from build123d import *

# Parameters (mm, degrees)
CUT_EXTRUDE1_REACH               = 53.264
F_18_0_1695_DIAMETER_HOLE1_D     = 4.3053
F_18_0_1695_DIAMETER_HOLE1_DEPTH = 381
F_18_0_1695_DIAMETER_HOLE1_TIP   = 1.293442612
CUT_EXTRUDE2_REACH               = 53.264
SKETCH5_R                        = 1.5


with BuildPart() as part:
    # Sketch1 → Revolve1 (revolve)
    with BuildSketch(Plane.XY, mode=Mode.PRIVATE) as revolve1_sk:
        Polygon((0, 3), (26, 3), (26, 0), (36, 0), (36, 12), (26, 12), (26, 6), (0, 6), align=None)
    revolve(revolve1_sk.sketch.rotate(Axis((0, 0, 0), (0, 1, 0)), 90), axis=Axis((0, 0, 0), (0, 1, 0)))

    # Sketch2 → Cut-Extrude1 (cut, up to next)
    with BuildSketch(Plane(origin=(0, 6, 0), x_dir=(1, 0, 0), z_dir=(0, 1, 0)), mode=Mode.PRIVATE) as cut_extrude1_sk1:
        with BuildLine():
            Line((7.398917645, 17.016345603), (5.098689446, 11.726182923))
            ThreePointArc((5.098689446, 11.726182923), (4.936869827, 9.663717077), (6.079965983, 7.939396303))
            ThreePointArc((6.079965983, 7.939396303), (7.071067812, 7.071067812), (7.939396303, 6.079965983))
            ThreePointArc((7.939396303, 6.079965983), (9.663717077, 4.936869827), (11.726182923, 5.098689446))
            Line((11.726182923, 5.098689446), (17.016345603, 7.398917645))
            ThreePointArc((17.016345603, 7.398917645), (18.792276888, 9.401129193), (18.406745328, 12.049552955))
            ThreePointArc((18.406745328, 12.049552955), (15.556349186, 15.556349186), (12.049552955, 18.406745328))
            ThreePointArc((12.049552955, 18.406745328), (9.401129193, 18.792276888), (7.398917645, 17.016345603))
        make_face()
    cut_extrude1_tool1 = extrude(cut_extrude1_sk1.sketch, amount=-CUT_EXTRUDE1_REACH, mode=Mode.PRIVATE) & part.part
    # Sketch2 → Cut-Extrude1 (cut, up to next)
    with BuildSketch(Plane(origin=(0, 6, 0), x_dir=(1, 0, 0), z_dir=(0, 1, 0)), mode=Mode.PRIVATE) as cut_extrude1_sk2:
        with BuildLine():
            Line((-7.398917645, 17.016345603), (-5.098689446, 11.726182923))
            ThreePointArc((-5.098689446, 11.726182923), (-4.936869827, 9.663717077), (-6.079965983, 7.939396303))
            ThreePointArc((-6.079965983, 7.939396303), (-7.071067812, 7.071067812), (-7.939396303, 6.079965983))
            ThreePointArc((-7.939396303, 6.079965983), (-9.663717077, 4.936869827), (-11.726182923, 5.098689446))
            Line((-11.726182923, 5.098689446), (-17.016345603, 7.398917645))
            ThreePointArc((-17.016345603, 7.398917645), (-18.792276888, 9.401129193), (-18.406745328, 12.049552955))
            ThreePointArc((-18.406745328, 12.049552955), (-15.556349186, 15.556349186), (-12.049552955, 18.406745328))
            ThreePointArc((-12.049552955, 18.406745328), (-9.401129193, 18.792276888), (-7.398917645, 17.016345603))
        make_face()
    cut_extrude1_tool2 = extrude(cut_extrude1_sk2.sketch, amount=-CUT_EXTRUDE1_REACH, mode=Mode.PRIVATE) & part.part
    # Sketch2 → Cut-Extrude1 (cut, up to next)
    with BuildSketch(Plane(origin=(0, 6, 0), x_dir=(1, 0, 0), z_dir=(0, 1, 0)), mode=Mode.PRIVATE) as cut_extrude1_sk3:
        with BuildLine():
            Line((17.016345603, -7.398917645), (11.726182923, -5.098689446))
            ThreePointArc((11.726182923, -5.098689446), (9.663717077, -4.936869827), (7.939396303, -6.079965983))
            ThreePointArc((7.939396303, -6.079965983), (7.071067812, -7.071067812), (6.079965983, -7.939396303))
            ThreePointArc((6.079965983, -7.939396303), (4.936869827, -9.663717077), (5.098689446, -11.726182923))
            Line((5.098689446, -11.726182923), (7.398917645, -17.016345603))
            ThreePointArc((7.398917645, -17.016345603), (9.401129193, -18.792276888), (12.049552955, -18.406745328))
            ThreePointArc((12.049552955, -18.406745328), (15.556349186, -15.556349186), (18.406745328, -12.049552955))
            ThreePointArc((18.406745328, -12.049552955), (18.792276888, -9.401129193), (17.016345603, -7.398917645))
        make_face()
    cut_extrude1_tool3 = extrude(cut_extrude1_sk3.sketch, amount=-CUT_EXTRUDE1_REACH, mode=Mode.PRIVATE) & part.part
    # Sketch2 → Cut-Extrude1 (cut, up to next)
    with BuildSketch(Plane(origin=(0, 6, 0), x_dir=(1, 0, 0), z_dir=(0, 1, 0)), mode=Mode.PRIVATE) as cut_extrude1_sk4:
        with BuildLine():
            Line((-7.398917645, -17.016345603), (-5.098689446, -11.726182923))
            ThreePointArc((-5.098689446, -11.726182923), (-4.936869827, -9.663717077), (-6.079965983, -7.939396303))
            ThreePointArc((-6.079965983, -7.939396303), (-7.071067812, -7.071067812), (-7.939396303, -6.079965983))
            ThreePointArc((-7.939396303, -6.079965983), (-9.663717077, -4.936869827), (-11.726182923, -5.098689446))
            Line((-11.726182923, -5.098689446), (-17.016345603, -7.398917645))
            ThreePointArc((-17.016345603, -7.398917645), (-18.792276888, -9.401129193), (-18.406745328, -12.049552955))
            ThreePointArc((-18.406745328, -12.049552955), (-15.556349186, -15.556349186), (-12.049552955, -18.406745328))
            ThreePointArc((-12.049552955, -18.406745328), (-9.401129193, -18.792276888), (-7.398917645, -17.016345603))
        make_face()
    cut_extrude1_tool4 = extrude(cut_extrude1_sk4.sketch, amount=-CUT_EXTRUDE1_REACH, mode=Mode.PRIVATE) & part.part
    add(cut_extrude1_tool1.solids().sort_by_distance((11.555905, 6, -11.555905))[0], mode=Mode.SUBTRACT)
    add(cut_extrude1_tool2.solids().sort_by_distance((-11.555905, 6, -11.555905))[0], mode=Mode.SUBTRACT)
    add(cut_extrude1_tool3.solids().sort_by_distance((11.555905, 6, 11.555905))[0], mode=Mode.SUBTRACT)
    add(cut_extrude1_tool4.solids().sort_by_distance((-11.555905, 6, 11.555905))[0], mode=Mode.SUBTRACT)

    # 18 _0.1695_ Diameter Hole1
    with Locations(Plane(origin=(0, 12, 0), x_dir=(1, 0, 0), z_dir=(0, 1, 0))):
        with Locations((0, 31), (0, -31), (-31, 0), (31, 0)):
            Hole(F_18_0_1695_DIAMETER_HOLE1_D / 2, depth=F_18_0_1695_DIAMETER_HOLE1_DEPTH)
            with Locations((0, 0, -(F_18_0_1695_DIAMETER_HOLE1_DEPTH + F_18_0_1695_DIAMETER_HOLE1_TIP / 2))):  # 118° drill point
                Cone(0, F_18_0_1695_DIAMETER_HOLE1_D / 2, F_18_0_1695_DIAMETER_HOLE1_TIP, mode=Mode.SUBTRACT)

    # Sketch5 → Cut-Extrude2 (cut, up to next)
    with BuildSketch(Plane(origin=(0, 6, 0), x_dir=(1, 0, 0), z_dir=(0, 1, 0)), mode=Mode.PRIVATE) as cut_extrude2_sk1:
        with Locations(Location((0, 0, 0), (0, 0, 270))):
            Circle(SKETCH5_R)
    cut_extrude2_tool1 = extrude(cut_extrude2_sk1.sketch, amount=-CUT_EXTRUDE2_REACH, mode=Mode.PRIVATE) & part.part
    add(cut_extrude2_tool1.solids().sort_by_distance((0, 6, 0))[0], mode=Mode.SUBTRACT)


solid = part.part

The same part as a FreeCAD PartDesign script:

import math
import FreeCAD as App
import Part
import Sketcher
Q = App.Units.Quantity

doc = App.newDocument("Part")
body = doc.addObject("PartDesign::Body", "Body")

# Sketch on XY plane
sketch1 = body.newObject("Sketcher::SketchObject", "Sketch")
sketch1.AttachmentSupport = (doc.getObject("XY_Plane"), [""])
sketch1.MapMode = "FlatFace"
sketch1.addGeometry(Part.LineSegment(App.Vector(0, 3, 0), App.Vector(26, 3, 0)), False)
sketch1.addGeometry(Part.LineSegment(App.Vector(26, 3, 0), App.Vector(26, 0, 0)), False)
sketch1.addGeometry(Part.LineSegment(App.Vector(26, 0, 0), App.Vector(36, 0, 0)), False)
sketch1.addGeometry(Part.LineSegment(App.Vector(36, 0, 0), App.Vector(36, 12, 0)), False)
sketch1.addGeometry(Part.LineSegment(App.Vector(36, 12, 0), App.Vector(26, 12, 0)), False)
sketch1.addGeometry(Part.LineSegment(App.Vector(26, 12, 0), App.Vector(26, 6, 0)), False)
sketch1.addGeometry(Part.LineSegment(App.Vector(26, 6, 0), App.Vector(0, 6, 0)), False)
sketch1.addGeometry(Part.LineSegment(App.Vector(0, 6, 0), App.Vector(0, 3, 0)), False)
sketch1.addConstraint(Sketcher.Constraint("Coincident", 0, 2, 1, 1))
sketch1.addConstraint(Sketcher.Constraint("Coincident", 1, 2, 2, 1))
sketch1.addConstraint(Sketcher.Constraint("Coincident", 2, 2, 3, 1))
sketch1.addConstraint(Sketcher.Constraint("Coincident", 3, 2, 4, 1))
sketch1.addConstraint(Sketcher.Constraint("Coincident", 4, 2, 5, 1))
sketch1.addConstraint(Sketcher.Constraint("Coincident", 5, 2, 6, 1))
sketch1.addConstraint(Sketcher.Constraint("Coincident", 6, 2, 7, 1))
sketch1.addConstraint(Sketcher.Constraint("Coincident", 7, 2, 0, 1))
sketch1.addConstraint(Sketcher.Constraint("Horizontal", 0))
sketch1.addConstraint(Sketcher.Constraint("Vertical", 1))
sketch1.addConstraint(Sketcher.Constraint("Horizontal", 2))
sketch1.addConstraint(Sketcher.Constraint("Vertical", 3))
sketch1.addConstraint(Sketcher.Constraint("Horizontal", 4))
sketch1.addConstraint(Sketcher.Constraint("Vertical", 5))
sketch1.addConstraint(Sketcher.Constraint("Horizontal", 6))
sketch1.addConstraint(Sketcher.Constraint("Vertical", 7))
sketch1.addConstraint(Sketcher.Constraint("PointOnObject", 1, 2, -1))
sketch1.addConstraint(Sketcher.Constraint("PointOnObject", 6, 2, -2))
sketch1.addConstraint(Sketcher.Constraint("Vertical", 1, 2, 4, 2))
sketch1.addConstraint(Sketcher.Constraint("Equal", 1, 7))
sketch1.addConstraint(Sketcher.Constraint("DistanceX", 0, 1, 0, 2, 26.0))
sketch1.addConstraint(Sketcher.Constraint("DistanceX", 2, 1, 2, 2, 10.0))
sketch1.addConstraint(Sketcher.Constraint("DistanceY", 1, 2, 1, 1, 3.0))
sketch1.addConstraint(Sketcher.Constraint("DistanceY", 3, 1, 3, 2, 12.0))
revolution = body.newObject("PartDesign::Revolution", "Revolution")
revolution.Profile = sketch1
revolution.ReferenceAxis = (sketch1, ["V_Axis"])
revolution.Angle = 360

# Sketch on XZ plane
sketch2 = body.newObject("Sketcher::SketchObject", "Sketch001")
sketch2.AttachmentSupport = (doc.getObject("XZ_Plane"), [""])
sketch2.MapMode = "FlatFace"
sketch2.AttachmentOffset = App.Placement(App.Vector(0, 0, -6), App.Rotation())
sketch2.addGeometry(Part.LineSegment(App.Vector(7.398918, -17.016346, 0), App.Vector(5.098689, -11.726183, 0)), False)
sketch2.addGeometry(Part.ArcOfCircle(Part.Circle(App.Vector(8.010355, -10.460155, 0), App.Vector(0, 0, 1), 3.175), math.radians(127.444784), math.radians(203.5)), False)
sketch2.addGeometry(Part.ArcOfCircle(Part.Circle(App.Vector(0, 0, 0), App.Vector(0, 0, 1), 10), math.radians(-52.555215), math.radians(-37.444785)), False)
sketch2.addGeometry(Part.ArcOfCircle(Part.Circle(App.Vector(10.460155, -8.010355, 0), App.Vector(0, 0, 1), 3.175), math.radians(66.5), math.radians(142.555216)), False)
sketch2.addGeometry(Part.LineSegment(App.Vector(11.726183, -5.098689, 0), App.Vector(17.016346, -7.398918, 0)), False)
sketch2.addGeometry(Part.ArcOfCircle(Part.Circle(App.Vector(15.750317, -10.310583, 0), App.Vector(0, 0, 1), 3.175), math.radians(-33.209842), math.radians(66.5)), False)
sketch2.addGeometry(Part.ArcOfCircle(Part.Circle(App.Vector(0, 0, 0), App.Vector(0, 0, 1), 22), math.radians(-56.790158), math.radians(-33.209842)), False)
sketch2.addGeometry(Part.ArcOfCircle(Part.Circle(App.Vector(10.310583, -15.750317, 0), App.Vector(0, 0, 1), 3.175), math.radians(-156.5), math.radians(-56.790158)), False)
sketch2.addConstraint(Sketcher.Constraint("Tangent", 0, 2, 1, 2))
sketch2.addConstraint(Sketcher.Constraint("Tangent", 1, 1, 2, 1))
sketch2.addConstraint(Sketcher.Constraint("Tangent", 2, 2, 3, 2))
sketch2.addConstraint(Sketcher.Constraint("Tangent", 3, 1, 4, 1))
sketch2.addConstraint(Sketcher.Constraint("Tangent", 4, 2, 5, 2))
sketch2.addConstraint(Sketcher.Constraint("Tangent", 5, 1, 6, 2))
sketch2.addConstraint(Sketcher.Constraint("Tangent", 6, 1, 7, 2))
sketch2.addConstraint(Sketcher.Constraint("Tangent", 7, 1, 0, 1))
sketch2.addConstraint(Sketcher.Constraint("Coincident", 2, 3, -1, 1))
sketch2.addConstraint(Sketcher.Constraint("Coincident", 6, 3, -1, 1))
sketch2.addConstraint(Sketcher.Constraint("Equal", 1, 3))
sketch2.addConstraint(Sketcher.Constraint("Equal", 3, 5))
sketch2.addConstraint(Sketcher.Constraint("Equal", 5, 7))
sketch2.addConstraint(Sketcher.Constraint("Equal", 0, 4))
sketch2.addConstraint(Sketcher.Constraint("Radius", 2, 10.0))
sketch2.addConstraint(Sketcher.Constraint("Radius", 6, 22.0))
sketch2.addConstraint(Sketcher.Constraint("Angle", 0, Q("113.5 deg")))
sketch2.addConstraint(Sketcher.Constraint("Angle", 4, Q("-23.5 deg")))
sketch2.addConstraint(Sketcher.Constraint("Radius", 1, 3.175))
sketch2.addConstraint(Sketcher.Constraint("DistanceX", 1, 3, 3, 3, 2.449799))
pocket1 = body.newObject("PartDesign::Pocket", "Pocket")
pocket1.Profile = sketch2
pocket1.Type = "UpToFirst"
pocket1.Reversed = True

# Sketch on XZ plane
sketch3 = body.newObject("Sketcher::SketchObject", "Sketch002")
sketch3.AttachmentSupport = (doc.getObject("XZ_Plane"), [""])
sketch3.MapMode = "FlatFace"
sketch3.AttachmentOffset = App.Placement(App.Vector(0, 0, -6), App.Rotation())
sketch3.addGeometry(Part.LineSegment(App.Vector(-5.098689, -11.726183, 0), App.Vector(-7.398918, -17.016346, 0)), False)
sketch3.addGeometry(Part.ArcOfCircle(Part.Circle(App.Vector(-10.310583, -15.750317, 0), App.Vector(0, 0, 1), 3.175), math.radians(-123.209842), math.radians(-23.5)), False)
sketch3.addGeometry(Part.ArcOfCircle(Part.Circle(App.Vector(0, 0, 0), App.Vector(0, 0, 1), 22), math.radians(-146.790158), math.radians(-123.209842)), False)
sketch3.addGeometry(Part.ArcOfCircle(Part.Circle(App.Vector(-15.750317, -10.310583, 0), App.Vector(0, 0, 1), 3.175), math.radians(113.5), math.radians(213.209842)), False)
sketch3.addGeometry(Part.LineSegment(App.Vector(-17.016346, -7.398918, 0), App.Vector(-11.726183, -5.098689, 0)), False)
sketch3.addGeometry(Part.ArcOfCircle(Part.Circle(App.Vector(-10.460155, -8.010355, 0), App.Vector(0, 0, 1), 3.175), math.radians(37.444784), math.radians(113.5)), False)
sketch3.addGeometry(Part.ArcOfCircle(Part.Circle(App.Vector(0, 0, 0), App.Vector(0, 0, 1), 10), math.radians(-142.555215), math.radians(-127.444785)), False)
sketch3.addGeometry(Part.ArcOfCircle(Part.Circle(App.Vector(-8.010355, -10.460155, 0), App.Vector(0, 0, 1), 3.175), math.radians(-23.5), math.radians(52.555216)), False)
sketch3.addConstraint(Sketcher.Constraint("Tangent", 0, 2, 1, 2))
sketch3.addConstraint(Sketcher.Constraint("Tangent", 1, 1, 2, 2))
sketch3.addConstraint(Sketcher.Constraint("Tangent", 2, 1, 3, 2))
sketch3.addConstraint(Sketcher.Constraint("Tangent", 3, 1, 4, 1))
sketch3.addConstraint(Sketcher.Constraint("Tangent", 4, 2, 5, 2))
sketch3.addConstraint(Sketcher.Constraint("Tangent", 5, 1, 6, 1))
sketch3.addConstraint(Sketcher.Constraint("Tangent", 6, 2, 7, 2))
sketch3.addConstraint(Sketcher.Constraint("Tangent", 7, 1, 0, 1))
sketch3.addConstraint(Sketcher.Constraint("Coincident", 2, 3, -1, 1))
sketch3.addConstraint(Sketcher.Constraint("Coincident", 6, 3, -1, 1))
sketch3.addConstraint(Sketcher.Constraint("Equal", 1, 3))
sketch3.addConstraint(Sketcher.Constraint("Equal", 3, 5))
sketch3.addConstraint(Sketcher.Constraint("Equal", 5, 7))
sketch3.addConstraint(Sketcher.Constraint("Equal", 0, 4))
sketch3.addConstraint(Sketcher.Constraint("Radius", 2, 22.0))
sketch3.addConstraint(Sketcher.Constraint("Radius", 6, 10.0))
sketch3.addConstraint(Sketcher.Constraint("Angle", 0, Q("-113.5 deg")))
sketch3.addConstraint(Sketcher.Constraint("Angle", 4, Q("23.5 deg")))
sketch3.addConstraint(Sketcher.Constraint("Radius", 1, 3.175))
sketch3.addConstraint(Sketcher.Constraint("DistanceX", 5, 3, 7, 3, 2.449799))
pocket2 = body.newObject("PartDesign::Pocket", "Pocket001")
pocket2.Profile = sketch3
pocket2.Type = "UpToFirst"
pocket2.Reversed = True

# Sketch on XZ plane
sketch4 = body.newObject("Sketcher::SketchObject", "Sketch003")
sketch4.AttachmentSupport = (doc.getObject("XZ_Plane"), [""])
sketch4.MapMode = "FlatFace"
sketch4.AttachmentOffset = App.Placement(App.Vector(0, 0, -6), App.Rotation())
sketch4.addGeometry(Part.LineSegment(App.Vector(17.016346, 7.398918, 0), App.Vector(11.726183, 5.098689, 0)), False)
sketch4.addGeometry(Part.ArcOfCircle(Part.Circle(App.Vector(10.460155, 8.010355, 0), App.Vector(0, 0, 1), 3.175), math.radians(-142.555216), math.radians(-66.5)), False)
sketch4.addGeometry(Part.ArcOfCircle(Part.Circle(App.Vector(0, 0, 0), App.Vector(0, 0, 1), 10), math.radians(37.444785), math.radians(52.555215)), False)
sketch4.addGeometry(Part.ArcOfCircle(Part.Circle(App.Vector(8.010355, 10.460155, 0), App.Vector(0, 0, 1), 3.175), math.radians(156.5), math.radians(232.555216)), False)
sketch4.addGeometry(Part.LineSegment(App.Vector(5.098689, 11.726183, 0), App.Vector(7.398918, 17.016346, 0)), False)
sketch4.addGeometry(Part.ArcOfCircle(Part.Circle(App.Vector(10.310583, 15.750317, 0), App.Vector(0, 0, 1), 3.175), math.radians(56.790158), math.radians(156.5)), False)
sketch4.addGeometry(Part.ArcOfCircle(Part.Circle(App.Vector(0, 0, 0), App.Vector(0, 0, 1), 22), math.radians(33.209842), math.radians(56.790158)), False)
sketch4.addGeometry(Part.ArcOfCircle(Part.Circle(App.Vector(15.750317, 10.310583, 0), App.Vector(0, 0, 1), 3.175), math.radians(-66.5), math.radians(33.209842)), False)
sketch4.addConstraint(Sketcher.Constraint("Tangent", 0, 2, 1, 2))
sketch4.addConstraint(Sketcher.Constraint("Tangent", 1, 1, 2, 1))
sketch4.addConstraint(Sketcher.Constraint("Tangent", 2, 2, 3, 2))
sketch4.addConstraint(Sketcher.Constraint("Tangent", 3, 1, 4, 1))
sketch4.addConstraint(Sketcher.Constraint("Tangent", 4, 2, 5, 2))
sketch4.addConstraint(Sketcher.Constraint("Tangent", 5, 1, 6, 2))
sketch4.addConstraint(Sketcher.Constraint("Tangent", 6, 1, 7, 2))
sketch4.addConstraint(Sketcher.Constraint("Tangent", 7, 1, 0, 1))
sketch4.addConstraint(Sketcher.Constraint("Coincident", 2, 3, -1, 1))
sketch4.addConstraint(Sketcher.Constraint("Coincident", 6, 3, -1, 1))
sketch4.addConstraint(Sketcher.Constraint("Equal", 1, 3))
sketch4.addConstraint(Sketcher.Constraint("Equal", 3, 5))
sketch4.addConstraint(Sketcher.Constraint("Equal", 5, 7))
sketch4.addConstraint(Sketcher.Constraint("Equal", 0, 4))
sketch4.addConstraint(Sketcher.Constraint("Radius", 2, 10.0))
sketch4.addConstraint(Sketcher.Constraint("Radius", 6, 22.0))
sketch4.addConstraint(Sketcher.Constraint("Angle", 0, Q("-156.5 deg")))
sketch4.addConstraint(Sketcher.Constraint("Angle", 4, Q("66.5 deg")))
sketch4.addConstraint(Sketcher.Constraint("Radius", 1, 3.175))
sketch4.addConstraint(Sketcher.Constraint("DistanceX", 3, 3, 1, 3, 2.449799))
pocket3 = body.newObject("PartDesign::Pocket", "Pocket002")
pocket3.Profile = sketch4
pocket3.Type = "UpToFirst"
pocket3.Reversed = True

# Sketch on XZ plane
sketch5 = body.newObject("Sketcher::SketchObject", "Sketch004")
sketch5.AttachmentSupport = (doc.getObject("XZ_Plane"), [""])
sketch5.MapMode = "FlatFace"
sketch5.AttachmentOffset = App.Placement(App.Vector(0, 0, -6), App.Rotation())
sketch5.addGeometry(Part.LineSegment(App.Vector(-7.398918, 17.016346, 0), App.Vector(-5.098689, 11.726183, 0)), False)
sketch5.addGeometry(Part.ArcOfCircle(Part.Circle(App.Vector(-8.010355, 10.460155, 0), App.Vector(0, 0, 1), 3.175), math.radians(-52.555216), math.radians(23.5)), False)
sketch5.addGeometry(Part.ArcOfCircle(Part.Circle(App.Vector(0, 0, 0), App.Vector(0, 0, 1), 10), math.radians(127.444785), math.radians(142.555215)), False)
sketch5.addGeometry(Part.ArcOfCircle(Part.Circle(App.Vector(-10.460155, 8.010355, 0), App.Vector(0, 0, 1), 3.175), math.radians(-113.5), math.radians(-37.444784)), False)
sketch5.addGeometry(Part.LineSegment(App.Vector(-11.726183, 5.098689, 0), App.Vector(-17.016346, 7.398918, 0)), False)
sketch5.addGeometry(Part.ArcOfCircle(Part.Circle(App.Vector(-15.750317, 10.310583, 0), App.Vector(0, 0, 1), 3.175), math.radians(146.790158), math.radians(246.5)), False)
sketch5.addGeometry(Part.ArcOfCircle(Part.Circle(App.Vector(0, 0, 0), App.Vector(0, 0, 1), 22), math.radians(123.209842), math.radians(146.790158)), False)
sketch5.addGeometry(Part.ArcOfCircle(Part.Circle(App.Vector(-10.310583, 15.750317, 0), App.Vector(0, 0, 1), 3.175), math.radians(23.5), math.radians(123.209842)), False)
sketch5.addConstraint(Sketcher.Constraint("Tangent", 0, 2, 1, 2))
sketch5.addConstraint(Sketcher.Constraint("Tangent", 1, 1, 2, 1))
sketch5.addConstraint(Sketcher.Constraint("Tangent", 2, 2, 3, 2))
sketch5.addConstraint(Sketcher.Constraint("Tangent", 3, 1, 4, 1))
sketch5.addConstraint(Sketcher.Constraint("Tangent", 4, 2, 5, 2))
sketch5.addConstraint(Sketcher.Constraint("Tangent", 5, 1, 6, 2))
sketch5.addConstraint(Sketcher.Constraint("Tangent", 6, 1, 7, 2))
sketch5.addConstraint(Sketcher.Constraint("Tangent", 7, 1, 0, 1))
sketch5.addConstraint(Sketcher.Constraint("Coincident", 2, 3, -1, 1))
sketch5.addConstraint(Sketcher.Constraint("Coincident", 6, 3, -1, 1))
sketch5.addConstraint(Sketcher.Constraint("Equal", 1, 3))
sketch5.addConstraint(Sketcher.Constraint("Equal", 3, 5))
sketch5.addConstraint(Sketcher.Constraint("Equal", 5, 7))
sketch5.addConstraint(Sketcher.Constraint("Equal", 0, 4))
sketch5.addConstraint(Sketcher.Constraint("Radius", 2, 10.0))
sketch5.addConstraint(Sketcher.Constraint("Radius", 6, 22.0))
sketch5.addConstraint(Sketcher.Constraint("Angle", 0, Q("-66.5 deg")))
sketch5.addConstraint(Sketcher.Constraint("Angle", 4, Q("156.5 deg")))
sketch5.addConstraint(Sketcher.Constraint("Radius", 1, 3.175))
sketch5.addConstraint(Sketcher.Constraint("DistanceX", 3, 3, 1, 3, 2.449799))
pocket4 = body.newObject("PartDesign::Pocket", "Pocket003")
pocket4.Profile = sketch5
pocket4.Type = "UpToFirst"
pocket4.Reversed = True

# Sketch on XZ plane
sketch6 = body.newObject("Sketcher::SketchObject", "Sketch005")
sketch6.AttachmentSupport = (doc.getObject("XZ_Plane"), [""])
sketch6.MapMode = "FlatFace"
sketch6.AttachmentOffset = App.Placement(App.Vector(0, 0, -12), App.Rotation())
sketch6.addGeometry(Part.Circle(App.Vector(0, -31, 0), App.Vector(0, 0, 1), 2.15265), False)
sketch6.addGeometry(Part.Circle(App.Vector(0, 31, 0), App.Vector(0, 0, 1), 2.15265), False)
sketch6.addGeometry(Part.Circle(App.Vector(-31, 0, 0), App.Vector(0, 0, 1), 2.15265), False)
sketch6.addGeometry(Part.Circle(App.Vector(31, 0, 0), App.Vector(0, 0, 1), 2.15265), False)
sketch6.addConstraint(Sketcher.Constraint("Equal", 0, 1))
sketch6.addConstraint(Sketcher.Constraint("Equal", 1, 2))
sketch6.addConstraint(Sketcher.Constraint("Equal", 2, 3))
sketch6.addConstraint(Sketcher.Constraint("Symmetric", 0, 3, 1, 3, -1, 1))
sketch6.addConstraint(Sketcher.Constraint("Symmetric", 2, 3, 3, 3, -1, 1))
sketch6.addConstraint(Sketcher.Constraint("PointOnObject", 0, 3, -2))
sketch6.addConstraint(Sketcher.Constraint("PointOnObject", 2, 3, -1))
sketch6.addConstraint(Sketcher.Constraint("DistanceY", 0, 3, -1, 1, 31.0))
sketch6.addConstraint(Sketcher.Constraint("DistanceX", 2, 3, -1, 1, 31.0))
sketch6.addConstraint(Sketcher.Constraint("Diameter", 0, 4.3053))
doc.recompute()
hole = body.newObject("PartDesign::Hole", "Hole")
hole.Profile = sketch6
hole.ThreadType = "None"
hole.Diameter = 4.3053
hole.DepthType = "Dimension"
hole.Depth = 381
hole.DrillPoint = "Angled"
hole.DrillPointAngle = 118
hole.Reversed = True

# Sketch on XZ plane
sketch7 = body.newObject("Sketcher::SketchObject", "Sketch006")
sketch7.AttachmentSupport = (doc.getObject("XZ_Plane"), [""])
sketch7.MapMode = "FlatFace"
sketch7.AttachmentOffset = App.Placement(App.Vector(0, 0, -6), App.Rotation())
sketch7.addGeometry(Part.Circle(App.Vector(0, 0, 0), App.Vector(0, 0, 1), 1.5), False)
sketch7.addConstraint(Sketcher.Constraint("Coincident", 0, 3, -1, 1))
sketch7.addConstraint(Sketcher.Constraint("Diameter", 0, 3.0))
pocket5 = body.newObject("PartDesign::Pocket", "Pocket004")
pocket5.Profile = sketch7
pocket5.Type = "UpToFirst"
pocket5.Reversed = True

doc.recompute()
